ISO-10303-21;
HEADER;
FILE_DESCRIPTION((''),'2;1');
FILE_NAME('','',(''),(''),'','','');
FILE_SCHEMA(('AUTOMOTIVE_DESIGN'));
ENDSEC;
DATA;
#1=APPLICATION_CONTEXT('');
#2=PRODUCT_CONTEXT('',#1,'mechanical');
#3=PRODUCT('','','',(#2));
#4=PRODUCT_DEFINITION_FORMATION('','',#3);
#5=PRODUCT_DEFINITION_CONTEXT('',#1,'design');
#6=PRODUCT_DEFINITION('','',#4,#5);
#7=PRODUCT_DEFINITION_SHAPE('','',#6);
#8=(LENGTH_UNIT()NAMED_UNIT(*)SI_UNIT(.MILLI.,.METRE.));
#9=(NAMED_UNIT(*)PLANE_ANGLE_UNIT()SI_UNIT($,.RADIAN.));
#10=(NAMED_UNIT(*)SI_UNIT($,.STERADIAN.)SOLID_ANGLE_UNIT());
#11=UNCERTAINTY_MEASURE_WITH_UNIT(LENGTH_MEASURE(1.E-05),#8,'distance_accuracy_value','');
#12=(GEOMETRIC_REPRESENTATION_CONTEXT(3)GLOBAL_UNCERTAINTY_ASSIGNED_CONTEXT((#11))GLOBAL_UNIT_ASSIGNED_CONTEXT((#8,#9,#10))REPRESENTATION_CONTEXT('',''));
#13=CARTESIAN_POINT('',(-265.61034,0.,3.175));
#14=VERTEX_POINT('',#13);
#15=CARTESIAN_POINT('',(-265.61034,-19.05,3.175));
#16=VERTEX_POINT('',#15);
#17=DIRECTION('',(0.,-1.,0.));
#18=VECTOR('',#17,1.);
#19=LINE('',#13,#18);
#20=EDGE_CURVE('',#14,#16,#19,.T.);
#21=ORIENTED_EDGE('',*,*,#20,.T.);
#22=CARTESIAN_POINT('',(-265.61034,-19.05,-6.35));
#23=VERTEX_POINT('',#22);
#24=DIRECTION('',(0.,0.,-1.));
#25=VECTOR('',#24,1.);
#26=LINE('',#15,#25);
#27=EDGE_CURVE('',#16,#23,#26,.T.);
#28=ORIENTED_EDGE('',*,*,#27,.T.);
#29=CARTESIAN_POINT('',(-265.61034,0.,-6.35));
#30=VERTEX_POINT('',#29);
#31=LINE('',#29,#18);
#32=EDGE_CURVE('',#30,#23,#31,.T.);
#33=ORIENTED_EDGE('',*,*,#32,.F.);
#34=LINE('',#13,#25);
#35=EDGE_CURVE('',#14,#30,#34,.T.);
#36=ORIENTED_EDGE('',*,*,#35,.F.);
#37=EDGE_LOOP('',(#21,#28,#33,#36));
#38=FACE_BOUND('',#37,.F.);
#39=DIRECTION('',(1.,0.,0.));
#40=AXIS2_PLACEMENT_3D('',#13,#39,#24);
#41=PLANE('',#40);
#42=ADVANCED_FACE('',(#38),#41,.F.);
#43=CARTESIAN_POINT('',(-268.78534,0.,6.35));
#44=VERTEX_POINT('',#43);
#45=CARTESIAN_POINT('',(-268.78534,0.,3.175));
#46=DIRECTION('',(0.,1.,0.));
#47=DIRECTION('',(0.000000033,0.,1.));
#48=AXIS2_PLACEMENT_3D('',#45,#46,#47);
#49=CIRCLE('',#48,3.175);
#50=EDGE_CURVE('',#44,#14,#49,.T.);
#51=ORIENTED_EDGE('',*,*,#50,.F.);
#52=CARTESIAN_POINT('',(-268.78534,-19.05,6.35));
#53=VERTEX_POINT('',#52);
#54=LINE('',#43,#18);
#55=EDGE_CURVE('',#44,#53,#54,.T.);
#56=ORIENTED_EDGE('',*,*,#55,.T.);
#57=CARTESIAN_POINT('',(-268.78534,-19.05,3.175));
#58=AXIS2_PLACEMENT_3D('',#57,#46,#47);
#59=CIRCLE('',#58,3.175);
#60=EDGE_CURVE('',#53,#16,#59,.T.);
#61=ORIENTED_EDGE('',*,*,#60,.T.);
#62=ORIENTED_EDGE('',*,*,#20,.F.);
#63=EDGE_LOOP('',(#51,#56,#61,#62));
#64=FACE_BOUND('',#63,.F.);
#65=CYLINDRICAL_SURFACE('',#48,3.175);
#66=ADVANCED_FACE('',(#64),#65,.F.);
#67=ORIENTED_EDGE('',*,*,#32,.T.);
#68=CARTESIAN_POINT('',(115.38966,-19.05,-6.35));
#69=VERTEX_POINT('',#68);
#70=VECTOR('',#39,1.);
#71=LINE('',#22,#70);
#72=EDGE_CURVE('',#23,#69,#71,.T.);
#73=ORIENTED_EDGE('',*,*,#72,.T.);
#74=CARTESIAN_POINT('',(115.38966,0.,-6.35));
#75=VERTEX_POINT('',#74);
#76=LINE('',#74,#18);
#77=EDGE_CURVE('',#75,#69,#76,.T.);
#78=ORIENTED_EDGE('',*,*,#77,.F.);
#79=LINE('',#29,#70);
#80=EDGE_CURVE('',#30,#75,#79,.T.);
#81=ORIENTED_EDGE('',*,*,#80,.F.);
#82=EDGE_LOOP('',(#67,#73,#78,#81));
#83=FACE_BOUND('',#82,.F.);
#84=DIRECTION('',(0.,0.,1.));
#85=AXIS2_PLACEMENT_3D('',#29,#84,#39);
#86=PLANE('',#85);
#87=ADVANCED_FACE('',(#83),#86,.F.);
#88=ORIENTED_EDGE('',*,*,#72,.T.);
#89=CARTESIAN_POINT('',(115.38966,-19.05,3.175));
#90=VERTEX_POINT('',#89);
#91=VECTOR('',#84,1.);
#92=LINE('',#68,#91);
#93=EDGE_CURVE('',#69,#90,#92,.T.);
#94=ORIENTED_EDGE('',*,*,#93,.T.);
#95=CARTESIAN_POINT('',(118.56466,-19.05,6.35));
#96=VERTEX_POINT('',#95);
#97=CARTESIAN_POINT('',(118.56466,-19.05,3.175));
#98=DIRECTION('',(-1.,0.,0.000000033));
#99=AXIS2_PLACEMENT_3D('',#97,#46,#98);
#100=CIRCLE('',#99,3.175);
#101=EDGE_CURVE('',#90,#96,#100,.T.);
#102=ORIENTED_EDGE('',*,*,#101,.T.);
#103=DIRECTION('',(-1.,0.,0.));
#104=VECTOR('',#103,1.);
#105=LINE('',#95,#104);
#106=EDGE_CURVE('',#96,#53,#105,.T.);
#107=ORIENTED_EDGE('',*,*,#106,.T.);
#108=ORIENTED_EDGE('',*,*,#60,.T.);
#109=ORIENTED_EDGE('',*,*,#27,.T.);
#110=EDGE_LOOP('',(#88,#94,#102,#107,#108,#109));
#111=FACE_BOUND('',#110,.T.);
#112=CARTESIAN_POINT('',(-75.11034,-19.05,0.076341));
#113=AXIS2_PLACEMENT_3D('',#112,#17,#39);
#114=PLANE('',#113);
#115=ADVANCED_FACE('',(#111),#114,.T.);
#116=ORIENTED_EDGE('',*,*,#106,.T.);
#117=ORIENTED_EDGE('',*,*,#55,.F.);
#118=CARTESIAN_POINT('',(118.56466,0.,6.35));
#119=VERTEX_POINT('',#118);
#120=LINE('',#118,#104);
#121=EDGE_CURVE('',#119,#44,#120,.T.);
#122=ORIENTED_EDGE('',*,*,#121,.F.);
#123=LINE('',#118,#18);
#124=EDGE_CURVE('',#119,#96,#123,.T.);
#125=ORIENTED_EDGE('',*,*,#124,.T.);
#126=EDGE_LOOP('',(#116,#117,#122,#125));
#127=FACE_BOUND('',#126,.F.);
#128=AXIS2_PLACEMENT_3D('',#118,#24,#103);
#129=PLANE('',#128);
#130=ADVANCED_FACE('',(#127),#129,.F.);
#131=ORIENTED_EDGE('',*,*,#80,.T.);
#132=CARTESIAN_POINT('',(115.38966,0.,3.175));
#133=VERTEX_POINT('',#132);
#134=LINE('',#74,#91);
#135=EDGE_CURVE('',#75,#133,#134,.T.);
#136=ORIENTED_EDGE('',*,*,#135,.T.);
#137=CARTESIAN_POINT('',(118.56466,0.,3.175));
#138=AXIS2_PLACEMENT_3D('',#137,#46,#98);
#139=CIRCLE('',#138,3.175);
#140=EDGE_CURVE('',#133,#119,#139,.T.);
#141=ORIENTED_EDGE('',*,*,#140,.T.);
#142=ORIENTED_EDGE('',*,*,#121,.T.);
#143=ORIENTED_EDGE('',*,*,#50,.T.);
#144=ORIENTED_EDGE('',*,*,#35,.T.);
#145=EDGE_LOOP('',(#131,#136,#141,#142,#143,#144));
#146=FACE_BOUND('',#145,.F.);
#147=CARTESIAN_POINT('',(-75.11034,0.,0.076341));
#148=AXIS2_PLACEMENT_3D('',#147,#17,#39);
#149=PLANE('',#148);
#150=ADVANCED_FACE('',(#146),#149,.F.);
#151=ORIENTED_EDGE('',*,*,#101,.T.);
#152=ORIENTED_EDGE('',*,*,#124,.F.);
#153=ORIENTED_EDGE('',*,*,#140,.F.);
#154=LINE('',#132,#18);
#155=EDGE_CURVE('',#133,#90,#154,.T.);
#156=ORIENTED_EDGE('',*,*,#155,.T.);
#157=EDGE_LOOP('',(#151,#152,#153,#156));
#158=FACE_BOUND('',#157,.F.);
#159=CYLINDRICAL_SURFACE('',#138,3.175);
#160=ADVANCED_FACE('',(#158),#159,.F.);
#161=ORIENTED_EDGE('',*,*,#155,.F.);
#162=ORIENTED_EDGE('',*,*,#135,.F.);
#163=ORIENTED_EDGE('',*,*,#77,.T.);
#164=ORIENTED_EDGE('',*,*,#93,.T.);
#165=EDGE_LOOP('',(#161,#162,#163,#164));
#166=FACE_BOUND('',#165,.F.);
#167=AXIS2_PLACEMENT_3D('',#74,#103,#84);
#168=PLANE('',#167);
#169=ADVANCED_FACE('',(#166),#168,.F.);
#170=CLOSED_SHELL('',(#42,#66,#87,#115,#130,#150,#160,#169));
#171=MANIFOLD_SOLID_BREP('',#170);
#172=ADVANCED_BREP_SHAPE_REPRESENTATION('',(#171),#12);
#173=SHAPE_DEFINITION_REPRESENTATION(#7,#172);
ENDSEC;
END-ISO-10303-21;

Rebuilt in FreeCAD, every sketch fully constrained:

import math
import FreeCAD as App
import Part
import Sketcher
Q = App.Units.Quantity

doc = App.newDocument("Part")
body = doc.addObject("PartDesign::Body", "Body")

# Sketch on XZ plane
sketch1 = body.newObject("Sketcher::SketchObject", "Sketch")
sketch1.AttachmentSupport = (doc.getObject("XZ_Plane"), [""])
sketch1.MapMode = "FlatFace"
sketch1.addGeometry([
    Part.ArcOfCircle(Part.Circle(App.Vector(118.6, 3.2, 0), App.Vector(0, 0, 1), 3.2), math.radians(90), math.radians(180)),  # 0
    Part.LineSegment(App.Vector(118.6, 6.3, 0), App.Vector(-268.8, 6.3, 0)),  # 1
    Part.ArcOfCircle(Part.Circle(App.Vector(-268.8, 3.2, 0), App.Vector(0, 0, 1), 3.2), math.radians(0), math.radians(90)),  # 2
    Part.LineSegment(App.Vector(-265.6, 3.2, 0), App.Vector(-265.6, -6.3, 0)),  # 3
    Part.LineSegment(App.Vector(-265.6, -6.3, 0), App.Vector(115.4, -6.3, 0)),  # 4
    Part.LineSegment(App.Vector(115.4, -6.3, 0), App.Vector(115.4, 3.2, 0)),  # 5
], False)
sketch1.addConstraint([
    Sketcher.Constraint("Tangent", 0, 1, 1, 1),
    Sketcher.Constraint("Tangent", 1, 2, 2, 2),
    Sketcher.Constraint("Tangent", 2, 1, 3, 1),
    Sketcher.Constraint("Coincident", 3, 2, 4, 1),
    Sketcher.Constraint("Coincident", 4, 2, 5, 1),
    Sketcher.Constraint("Tangent", 5, 2, 0, 2),
    Sketcher.Constraint("Horizontal", 1),
    Sketcher.Constraint("Vertical", 3),
    Sketcher.Constraint("Horizontal", 4),
    Sketcher.Constraint("Vertical", 5),
    Sketcher.Constraint("Equal", 0, 2),
    Sketcher.Constraint("DistanceX", 4, 1, 4, 2, Q("15 in")),
    Sketcher.Constraint("Radius", 0, Q("0.125 in")),
    Sketcher.Constraint("DistanceY", 3, 2, 1, 2, Q("0.5 in")),
    Sketcher.Constraint("DistanceY", -1, 1, 0, 1, Q("0.25 in")),
    Sketcher.Constraint("DistanceX", -1, 1, 0, 3, Q("4.6679 in")),
])
pad1 = body.newObject("PartDesign::Pad", "Pad")
pad1.Profile = sketch1
pad1.Length = Q("0.75 in")

doc.recompute()
